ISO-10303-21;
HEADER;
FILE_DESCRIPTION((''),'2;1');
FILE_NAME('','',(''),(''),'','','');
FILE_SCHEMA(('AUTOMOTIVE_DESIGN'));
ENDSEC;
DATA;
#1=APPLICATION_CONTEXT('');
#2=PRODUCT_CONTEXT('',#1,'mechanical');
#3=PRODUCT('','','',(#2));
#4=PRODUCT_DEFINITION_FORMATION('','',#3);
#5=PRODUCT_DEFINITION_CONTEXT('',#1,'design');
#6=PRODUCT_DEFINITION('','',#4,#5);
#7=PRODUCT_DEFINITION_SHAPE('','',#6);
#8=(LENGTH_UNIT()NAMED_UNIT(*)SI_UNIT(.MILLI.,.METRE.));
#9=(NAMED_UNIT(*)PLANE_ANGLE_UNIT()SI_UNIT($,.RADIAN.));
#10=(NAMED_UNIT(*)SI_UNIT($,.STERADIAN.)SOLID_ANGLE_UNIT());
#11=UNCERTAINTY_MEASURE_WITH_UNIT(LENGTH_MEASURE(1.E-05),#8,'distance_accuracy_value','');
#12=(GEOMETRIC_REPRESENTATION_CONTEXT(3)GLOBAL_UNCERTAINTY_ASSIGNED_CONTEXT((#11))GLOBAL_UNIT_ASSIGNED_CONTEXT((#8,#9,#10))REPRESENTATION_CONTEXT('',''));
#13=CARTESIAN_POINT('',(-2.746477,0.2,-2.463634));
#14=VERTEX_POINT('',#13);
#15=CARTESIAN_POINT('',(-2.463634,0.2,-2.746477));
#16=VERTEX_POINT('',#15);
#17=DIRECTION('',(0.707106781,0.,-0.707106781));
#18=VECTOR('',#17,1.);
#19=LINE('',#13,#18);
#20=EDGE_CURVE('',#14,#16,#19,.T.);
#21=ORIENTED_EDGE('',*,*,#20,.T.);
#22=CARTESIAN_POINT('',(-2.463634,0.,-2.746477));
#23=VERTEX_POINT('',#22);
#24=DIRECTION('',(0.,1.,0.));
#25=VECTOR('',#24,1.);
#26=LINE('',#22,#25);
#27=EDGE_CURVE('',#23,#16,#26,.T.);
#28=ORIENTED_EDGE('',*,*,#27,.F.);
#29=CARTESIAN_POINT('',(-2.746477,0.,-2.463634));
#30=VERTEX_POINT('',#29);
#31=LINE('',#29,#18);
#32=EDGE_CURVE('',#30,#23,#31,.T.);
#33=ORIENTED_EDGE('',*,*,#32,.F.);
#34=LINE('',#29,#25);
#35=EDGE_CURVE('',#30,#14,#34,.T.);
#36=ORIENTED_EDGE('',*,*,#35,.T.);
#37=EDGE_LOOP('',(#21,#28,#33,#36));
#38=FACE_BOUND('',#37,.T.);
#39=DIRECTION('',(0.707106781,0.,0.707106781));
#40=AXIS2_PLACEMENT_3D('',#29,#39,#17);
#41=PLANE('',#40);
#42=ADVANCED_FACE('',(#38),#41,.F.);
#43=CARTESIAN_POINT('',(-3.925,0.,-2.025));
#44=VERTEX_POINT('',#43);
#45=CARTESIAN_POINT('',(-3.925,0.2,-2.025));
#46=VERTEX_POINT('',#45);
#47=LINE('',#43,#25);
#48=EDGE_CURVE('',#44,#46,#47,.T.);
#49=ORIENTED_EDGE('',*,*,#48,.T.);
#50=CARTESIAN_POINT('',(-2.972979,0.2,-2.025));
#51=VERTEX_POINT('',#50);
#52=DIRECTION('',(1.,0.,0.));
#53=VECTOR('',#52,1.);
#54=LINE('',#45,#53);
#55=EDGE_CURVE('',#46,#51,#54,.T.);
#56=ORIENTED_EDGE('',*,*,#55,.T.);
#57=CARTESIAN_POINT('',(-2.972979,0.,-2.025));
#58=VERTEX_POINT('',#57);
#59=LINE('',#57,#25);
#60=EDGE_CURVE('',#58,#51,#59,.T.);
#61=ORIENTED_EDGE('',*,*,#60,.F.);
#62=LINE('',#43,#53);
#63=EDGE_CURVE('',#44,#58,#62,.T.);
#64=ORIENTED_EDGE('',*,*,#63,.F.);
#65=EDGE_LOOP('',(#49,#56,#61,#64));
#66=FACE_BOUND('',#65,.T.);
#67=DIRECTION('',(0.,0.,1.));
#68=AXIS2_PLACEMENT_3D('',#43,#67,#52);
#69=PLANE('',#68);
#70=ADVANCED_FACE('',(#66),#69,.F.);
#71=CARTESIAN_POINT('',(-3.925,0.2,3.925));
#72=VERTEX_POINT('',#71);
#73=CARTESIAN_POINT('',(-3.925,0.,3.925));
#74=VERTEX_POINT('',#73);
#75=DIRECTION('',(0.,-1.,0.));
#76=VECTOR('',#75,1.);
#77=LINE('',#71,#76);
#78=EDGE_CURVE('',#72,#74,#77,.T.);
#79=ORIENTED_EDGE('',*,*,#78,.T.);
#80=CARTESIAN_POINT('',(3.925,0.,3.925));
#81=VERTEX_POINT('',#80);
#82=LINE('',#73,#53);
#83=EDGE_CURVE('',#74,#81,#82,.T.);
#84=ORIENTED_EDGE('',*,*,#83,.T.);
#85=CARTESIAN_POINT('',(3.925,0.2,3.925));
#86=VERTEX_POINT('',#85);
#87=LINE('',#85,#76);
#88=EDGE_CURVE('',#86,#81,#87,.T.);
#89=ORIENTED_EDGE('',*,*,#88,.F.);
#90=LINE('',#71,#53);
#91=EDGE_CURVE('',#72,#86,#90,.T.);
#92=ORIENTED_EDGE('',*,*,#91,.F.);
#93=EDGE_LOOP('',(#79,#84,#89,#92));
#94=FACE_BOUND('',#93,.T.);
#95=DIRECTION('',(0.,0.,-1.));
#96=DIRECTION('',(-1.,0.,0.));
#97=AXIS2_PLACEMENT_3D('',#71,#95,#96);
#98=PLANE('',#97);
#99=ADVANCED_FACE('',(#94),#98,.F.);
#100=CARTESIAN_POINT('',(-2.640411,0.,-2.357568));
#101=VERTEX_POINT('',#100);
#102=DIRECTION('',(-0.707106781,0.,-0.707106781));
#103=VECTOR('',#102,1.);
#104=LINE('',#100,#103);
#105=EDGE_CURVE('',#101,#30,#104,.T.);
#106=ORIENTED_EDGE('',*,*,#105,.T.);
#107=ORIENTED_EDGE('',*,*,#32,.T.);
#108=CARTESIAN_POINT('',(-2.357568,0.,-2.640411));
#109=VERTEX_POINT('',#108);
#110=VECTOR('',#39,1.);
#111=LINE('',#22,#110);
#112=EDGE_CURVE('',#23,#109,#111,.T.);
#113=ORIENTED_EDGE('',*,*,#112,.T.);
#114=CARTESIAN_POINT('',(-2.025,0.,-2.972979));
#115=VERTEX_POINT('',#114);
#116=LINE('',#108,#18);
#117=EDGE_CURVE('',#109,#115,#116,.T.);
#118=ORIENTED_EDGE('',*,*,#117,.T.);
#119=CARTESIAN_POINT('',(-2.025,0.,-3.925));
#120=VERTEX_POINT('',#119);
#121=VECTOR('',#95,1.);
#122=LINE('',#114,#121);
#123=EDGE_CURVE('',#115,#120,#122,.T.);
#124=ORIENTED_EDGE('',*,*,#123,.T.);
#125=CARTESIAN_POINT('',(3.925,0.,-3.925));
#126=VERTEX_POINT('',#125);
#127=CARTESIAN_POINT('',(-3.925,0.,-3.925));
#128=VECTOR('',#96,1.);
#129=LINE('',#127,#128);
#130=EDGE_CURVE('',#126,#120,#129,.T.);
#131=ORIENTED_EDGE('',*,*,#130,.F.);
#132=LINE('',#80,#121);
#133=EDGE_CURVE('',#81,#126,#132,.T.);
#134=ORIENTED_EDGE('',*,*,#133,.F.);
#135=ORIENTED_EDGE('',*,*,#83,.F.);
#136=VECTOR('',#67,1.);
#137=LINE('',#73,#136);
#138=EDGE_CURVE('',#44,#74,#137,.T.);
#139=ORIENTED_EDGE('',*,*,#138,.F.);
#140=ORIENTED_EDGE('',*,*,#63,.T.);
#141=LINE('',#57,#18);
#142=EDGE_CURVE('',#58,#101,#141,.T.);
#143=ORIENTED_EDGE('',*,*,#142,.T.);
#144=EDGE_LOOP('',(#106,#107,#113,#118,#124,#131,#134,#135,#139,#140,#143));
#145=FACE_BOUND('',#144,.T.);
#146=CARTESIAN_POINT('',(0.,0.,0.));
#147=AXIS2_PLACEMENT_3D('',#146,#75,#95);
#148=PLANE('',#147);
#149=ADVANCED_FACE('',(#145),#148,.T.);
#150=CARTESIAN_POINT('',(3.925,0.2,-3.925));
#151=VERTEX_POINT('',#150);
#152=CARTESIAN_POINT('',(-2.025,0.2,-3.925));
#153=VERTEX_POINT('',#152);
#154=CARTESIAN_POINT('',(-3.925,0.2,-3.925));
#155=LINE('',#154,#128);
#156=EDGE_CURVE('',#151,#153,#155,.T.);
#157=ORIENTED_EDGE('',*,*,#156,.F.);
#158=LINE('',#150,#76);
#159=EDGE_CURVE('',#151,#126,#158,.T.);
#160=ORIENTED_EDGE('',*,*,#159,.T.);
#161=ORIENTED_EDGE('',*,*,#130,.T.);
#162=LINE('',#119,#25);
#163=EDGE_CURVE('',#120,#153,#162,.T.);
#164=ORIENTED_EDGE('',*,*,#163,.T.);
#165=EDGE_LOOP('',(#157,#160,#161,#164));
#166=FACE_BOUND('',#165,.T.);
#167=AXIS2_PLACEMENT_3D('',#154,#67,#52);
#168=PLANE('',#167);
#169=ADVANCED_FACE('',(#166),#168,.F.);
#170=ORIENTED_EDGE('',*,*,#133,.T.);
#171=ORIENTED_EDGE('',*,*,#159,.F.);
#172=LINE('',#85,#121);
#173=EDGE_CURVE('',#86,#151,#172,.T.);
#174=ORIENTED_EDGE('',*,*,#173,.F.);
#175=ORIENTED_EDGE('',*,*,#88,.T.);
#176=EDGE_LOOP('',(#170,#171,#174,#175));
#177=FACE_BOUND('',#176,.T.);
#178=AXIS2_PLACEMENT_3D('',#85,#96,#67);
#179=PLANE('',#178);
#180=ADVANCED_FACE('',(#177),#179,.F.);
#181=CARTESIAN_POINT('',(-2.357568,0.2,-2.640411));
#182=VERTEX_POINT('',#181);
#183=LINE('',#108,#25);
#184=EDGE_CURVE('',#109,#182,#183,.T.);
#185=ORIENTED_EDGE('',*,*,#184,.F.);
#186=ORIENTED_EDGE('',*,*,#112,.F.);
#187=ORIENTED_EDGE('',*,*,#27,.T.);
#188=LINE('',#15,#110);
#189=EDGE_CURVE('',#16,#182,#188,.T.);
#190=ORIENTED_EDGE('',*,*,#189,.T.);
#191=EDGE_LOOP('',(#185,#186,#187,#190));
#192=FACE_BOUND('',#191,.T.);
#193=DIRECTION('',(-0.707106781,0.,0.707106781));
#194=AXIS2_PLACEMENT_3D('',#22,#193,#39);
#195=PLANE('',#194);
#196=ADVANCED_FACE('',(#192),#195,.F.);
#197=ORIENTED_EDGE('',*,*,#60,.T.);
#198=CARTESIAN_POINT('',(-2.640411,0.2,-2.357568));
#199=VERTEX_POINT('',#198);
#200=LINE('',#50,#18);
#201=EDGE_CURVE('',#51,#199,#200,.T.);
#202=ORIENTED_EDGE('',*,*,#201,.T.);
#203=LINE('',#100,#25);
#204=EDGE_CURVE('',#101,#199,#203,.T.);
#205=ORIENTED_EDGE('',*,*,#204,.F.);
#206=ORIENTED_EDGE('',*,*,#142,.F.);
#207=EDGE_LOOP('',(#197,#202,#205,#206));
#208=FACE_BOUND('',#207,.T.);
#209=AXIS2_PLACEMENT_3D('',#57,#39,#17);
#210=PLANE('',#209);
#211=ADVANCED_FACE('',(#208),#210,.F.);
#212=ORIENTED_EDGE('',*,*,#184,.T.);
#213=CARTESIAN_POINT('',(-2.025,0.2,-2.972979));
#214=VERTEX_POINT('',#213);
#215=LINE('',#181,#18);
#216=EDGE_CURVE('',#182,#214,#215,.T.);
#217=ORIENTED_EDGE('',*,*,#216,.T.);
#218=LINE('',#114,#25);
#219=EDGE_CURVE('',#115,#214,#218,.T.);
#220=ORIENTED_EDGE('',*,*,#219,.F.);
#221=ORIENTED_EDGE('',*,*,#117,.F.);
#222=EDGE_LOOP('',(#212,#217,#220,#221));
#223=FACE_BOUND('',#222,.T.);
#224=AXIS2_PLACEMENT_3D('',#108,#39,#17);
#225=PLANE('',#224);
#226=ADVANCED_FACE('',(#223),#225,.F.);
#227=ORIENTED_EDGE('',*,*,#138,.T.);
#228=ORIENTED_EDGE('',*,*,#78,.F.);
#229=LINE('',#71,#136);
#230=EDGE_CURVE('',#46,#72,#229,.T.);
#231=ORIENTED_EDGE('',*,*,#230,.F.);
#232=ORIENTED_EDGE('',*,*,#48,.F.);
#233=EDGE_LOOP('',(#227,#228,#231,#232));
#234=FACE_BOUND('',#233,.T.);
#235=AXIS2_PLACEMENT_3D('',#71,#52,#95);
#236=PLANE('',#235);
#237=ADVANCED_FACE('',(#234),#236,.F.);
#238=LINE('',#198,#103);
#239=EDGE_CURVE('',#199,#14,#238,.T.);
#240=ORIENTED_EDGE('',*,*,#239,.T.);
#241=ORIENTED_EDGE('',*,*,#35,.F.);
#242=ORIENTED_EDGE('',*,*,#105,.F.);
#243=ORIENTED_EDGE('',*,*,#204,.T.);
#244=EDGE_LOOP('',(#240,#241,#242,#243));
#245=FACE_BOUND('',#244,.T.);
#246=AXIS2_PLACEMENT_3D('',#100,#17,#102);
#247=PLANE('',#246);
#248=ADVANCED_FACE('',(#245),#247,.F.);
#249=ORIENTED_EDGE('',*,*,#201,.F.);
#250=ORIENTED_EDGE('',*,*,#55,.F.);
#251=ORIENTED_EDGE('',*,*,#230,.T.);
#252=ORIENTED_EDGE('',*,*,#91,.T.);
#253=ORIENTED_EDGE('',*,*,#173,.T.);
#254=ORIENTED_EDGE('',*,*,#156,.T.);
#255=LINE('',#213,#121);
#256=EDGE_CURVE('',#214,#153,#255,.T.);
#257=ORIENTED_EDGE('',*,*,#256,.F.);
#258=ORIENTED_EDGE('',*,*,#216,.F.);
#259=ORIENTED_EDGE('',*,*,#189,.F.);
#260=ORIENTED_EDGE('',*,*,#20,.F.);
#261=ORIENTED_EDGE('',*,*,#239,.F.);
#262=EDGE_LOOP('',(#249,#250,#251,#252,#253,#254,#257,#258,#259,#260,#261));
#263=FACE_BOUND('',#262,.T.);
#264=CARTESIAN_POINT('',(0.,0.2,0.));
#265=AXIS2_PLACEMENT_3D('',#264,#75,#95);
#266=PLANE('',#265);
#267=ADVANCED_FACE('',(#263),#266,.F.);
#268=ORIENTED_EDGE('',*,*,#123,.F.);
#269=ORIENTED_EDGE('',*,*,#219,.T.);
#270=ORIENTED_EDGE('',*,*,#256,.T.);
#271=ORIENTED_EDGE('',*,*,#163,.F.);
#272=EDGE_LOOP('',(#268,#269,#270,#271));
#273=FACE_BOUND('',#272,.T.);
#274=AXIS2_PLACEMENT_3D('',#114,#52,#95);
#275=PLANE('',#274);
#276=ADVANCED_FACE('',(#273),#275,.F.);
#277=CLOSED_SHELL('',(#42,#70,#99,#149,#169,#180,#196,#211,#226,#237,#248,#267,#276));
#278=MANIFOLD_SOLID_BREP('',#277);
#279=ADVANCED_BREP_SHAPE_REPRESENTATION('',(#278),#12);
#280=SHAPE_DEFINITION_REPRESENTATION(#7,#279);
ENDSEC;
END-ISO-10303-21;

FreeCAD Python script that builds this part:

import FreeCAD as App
import Part
import Sketcher
from FreeCAD import Vector
Q = App.Units.Quantity


def add_polygon(sketch, points):
    """Adds a closed chain of lines whose ends are joined by coincident constraints."""
    first, n = sketch.GeometryCount, len(points)
    for a, b in zip(points, points[1:] + points[:1]):
        sketch.addGeometry(Part.LineSegment(App.Vector(*a, 0), App.Vector(*b, 0)), False)
    for i in range(n):
        sketch.addConstraint(Sketcher.Constraint("Coincident", first + i, 2, first + (i + 1) % n, 1))

doc = App.newDocument("Part")
params = doc.addObject("Spreadsheet::Sheet", "Params")
for row, (alias, value) in enumerate([
    ("sketch1_width", "7.85 mm"),
    ("pad1_length", "0.2 mm"),
    ("sketch2_width", "1.9 mm"),
    ("sketch2_length", "0.4 mm"),
    ("sketch2_length2", "0.15 mm"),
], start=1):
    params.set(f"A{row}", alias)
    params.set(f"B{row}", "=" + value)
    params.setAlias(f"B{row}", alias)

body = doc.addObject("PartDesign::Body", "Body")

# Sketch on XZ plane
sketch1 = doc.addObject("Sketcher::SketchObject", "Sketch")
body.addObject(sketch1)
sketch1.AttachmentSupport = (doc.XZ_Plane, [""])
sketch1.MapMode = "FlatFace"
add_polygon(sketch1, [(-3.925, -3.925), (-3.925, 3.925), (3.925, 3.925), (3.925, -3.925)])  # lines 0-3
sketch1.addConstraint([
    Sketcher.Constraint("Vertical", 0),
    Sketcher.Constraint("Horizontal", 1),
    Sketcher.Constraint("Vertical", 2),
    Sketcher.Constraint("Horizontal", 3),
    Sketcher.Constraint("Symmetric", 0, 2, 2, 2, -1, 1),
    Sketcher.Constraint("Equal", 3, 0),
    Sketcher.Constraint("DistanceX", 1, 1, 1, 2, Q("7.85 mm")),
])
sketch1.setExpression("Constraints[10]", "Params.sketch1_width")
pad1 = doc.addObject("PartDesign::Pad", "Pad")
body.addObject(pad1)
pad1.Profile = sketch1
pad1.setExpression("Length", "Params.pad1_length")
pad1.Reversed = True

# Sketch on XZ plane
sketch2 = doc.addObject("Sketcher::SketchObject", "Sketch001")
body.addObject(sketch2)
sketch2.AttachmentSupport = (doc.XZ_Plane, [""])
sketch2.MapMode = "FlatFace"
sketch2.AttachmentOffset = App.Placement(Vector(0, 0, -0.2), App.Rotation())
add_polygon(sketch2, [(-3.925, -2.025), (-2.972979, -2.025), (-2.640411, -2.357568), (-2.746477, -2.463634), (-2.463634, -2.746477), (-2.357568, -2.640411), (-2.025, -2.972979), (-2.025, -3.925), (-3.925, -3.925)])  # lines 0-8
sketch2.addConstraint([
    Sketcher.Constraint("Horizontal", 0),
    Sketcher.Constraint("Vertical", 6),
    Sketcher.Constraint("Horizontal", 7),
    Sketcher.Constraint("Vertical", 8),
    Sketcher.Constraint("Perpendicular", 1, 2),
    Sketcher.Constraint("Perpendicular", 2, 3),
    Sketcher.Constraint("Perpendicular", 3, 4),
    Sketcher.Constraint("Perpendicular", 4, 5),
    Sketcher.Constraint("Equal", 0, 6),
    Sketcher.Constraint("Equal", 7, 8),
    Sketcher.Constraint("Equal", 2, 4),
    Sketcher.Constraint("Equal", 1, 5),
    Sketcher.Constraint("DistanceX", 7, 2, 7, 1, Q("1.9 mm")),
    Sketcher.Constraint("Distance", 3, Q("0.4 mm")),
    Sketcher.Constraint("Distance", 2, Q("0.15 mm")),
    Sketcher.Constraint("DistanceY", 0, 2, -1, 1, Q("2.025 mm")),
    Sketcher.Constraint("DistanceX", 5, 2, -1, 1, Q("2.025 mm")),
    Sketcher.Constraint("DistanceX", 0, 1, 0, 2, Q("0.952021 mm")),
])
sketch2.setExpression("Constraints[21]", "Params.sketch2_width")
sketch2.setExpression("Constraints[22]", "Params.sketch2_length")
sketch2.setExpression("Constraints[23]", "Params.sketch2_length2")
pocket1 = doc.addObject("PartDesign::Pocket", "Pocket")
body.addObject(pocket1)
pocket1.Profile = sketch2
pocket1.Type = "ThroughAll"
pocket1.Reversed = True

doc.recompute()
